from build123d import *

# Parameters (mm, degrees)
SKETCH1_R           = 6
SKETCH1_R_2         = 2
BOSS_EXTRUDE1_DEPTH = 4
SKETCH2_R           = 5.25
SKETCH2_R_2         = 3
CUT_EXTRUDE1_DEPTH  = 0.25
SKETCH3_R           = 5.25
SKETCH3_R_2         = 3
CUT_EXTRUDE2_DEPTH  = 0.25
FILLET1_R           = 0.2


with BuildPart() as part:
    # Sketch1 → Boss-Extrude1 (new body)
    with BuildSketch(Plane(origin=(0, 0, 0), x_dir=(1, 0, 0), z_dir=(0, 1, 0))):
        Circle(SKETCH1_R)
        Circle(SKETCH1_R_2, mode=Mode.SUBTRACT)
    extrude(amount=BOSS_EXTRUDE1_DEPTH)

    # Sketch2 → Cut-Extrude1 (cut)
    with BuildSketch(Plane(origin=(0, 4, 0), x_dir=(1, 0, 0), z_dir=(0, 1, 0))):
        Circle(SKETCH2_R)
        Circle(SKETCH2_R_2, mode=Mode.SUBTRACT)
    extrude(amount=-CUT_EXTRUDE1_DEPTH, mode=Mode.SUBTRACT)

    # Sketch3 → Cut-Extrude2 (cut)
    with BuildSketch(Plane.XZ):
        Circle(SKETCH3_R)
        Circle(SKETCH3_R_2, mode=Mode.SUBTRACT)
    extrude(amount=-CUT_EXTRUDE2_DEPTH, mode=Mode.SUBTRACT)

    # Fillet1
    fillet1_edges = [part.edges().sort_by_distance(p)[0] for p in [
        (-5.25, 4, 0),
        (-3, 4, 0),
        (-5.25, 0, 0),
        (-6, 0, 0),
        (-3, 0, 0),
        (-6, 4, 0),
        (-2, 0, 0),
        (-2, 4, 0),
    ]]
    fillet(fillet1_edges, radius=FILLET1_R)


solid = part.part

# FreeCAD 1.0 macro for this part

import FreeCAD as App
import Part
import Sketcher

V = App.Vector
Q = App.Units.Quantity


def edges_at(feature, points):
    """Names of the edges that pass closest to the given points."""
    edges = feature.Shape.Edges
    near = lambda p: min(range(len(edges)), key=lambda i: edges[i].distToShape(Part.Vertex(*p))[0])
    return sorted({f"Edge{near(p) + 1}" for p in points})

doc = App.newDocument("Part")
params = doc.addObject("Spreadsheet::Sheet", "Params")
for row, (alias, value) in enumerate([
    ("sketch1_diameter", "12 mm"),
    ("sketch1_diameter2", "4 mm"),
    ("pad1_length", "4 mm"),
    ("sketch2_diameter", "6 mm"),
    ("sketch2_diameter2", "10.5 mm"),
    ("pocket1_length", "0.25 mm"),
    ("sketch3_diameter", "6 mm"),
    ("sketch3_diameter2", "10.5 mm"),
    ("pocket2_length", "0.25 mm"),
    ("fillet_radius", "0.2 mm"),
], start=1):
    params.set(f"A{row}", alias)
    params.set(f"B{row}", "=" + value)
    params.setAlias(f"B{row}", alias)

body = doc.addObject("PartDesign::Body", "Body")

# Sketch on XZ plane
sketch1 = body.newObject("Sketcher::SketchObject", "Sketch")
sketch1.AttachmentSupport = (doc.getObject("XZ_Plane"), [""])
sketch1.MapMode = "FlatFace"
sketch1.addGeometry([
    Part.Circle(V(0, 0, 0), V(0, 0, 1), 6),
    Part.Circle(V(0, 0, 0), V(0, 0, 1), 2),
], False)
sketch1.addConstraint([
    Sketcher.Constraint("Coincident", 0, 3, -1, 1),
    Sketcher.Constraint("Coincident", 1, 3, -1, 1),
    Sketcher.Constraint("Diameter", 0, Q("12 mm")),
    Sketcher.Constraint("Diameter", 1, Q("4 mm")),
])
sketch1.setExpression("Constraints[2]", "Params.sketch1_diameter")
sketch1.setExpression("Constraints[3]", "Params.sketch1_diameter2")
pad1 = body.newObject("PartDesign::Pad", "Pad")
pad1.Profile = sketch1
pad1.setExpression("Length", "Params.pad1_length")
pad1.Reversed = True

# Sketch on XZ plane
sketch2 = body.newObject("Sketcher::SketchObject", "Sketch001")
sketch2.AttachmentSupport = (doc.getObject("XZ_Plane"), [""])
sketch2.MapMode = "FlatFace"
sketch2.AttachmentOffset = App.Placement(V(0, 0, -4), App.Rotation())
sketch2.addGeometry([
    Part.Circle(V(0, 0, 0), V(0, 0, 1), 5.25),
    Part.Circle(V(0, 0, 0), V(0, 0, 1), 3),
], False)
sketch2.addConstraint([
    Sketcher.Constraint("Coincident", 0, 3, -1, 1),
    Sketcher.Constraint("Coincident", 1, 3, -1, 1),
    Sketcher.Constraint("Diameter", 1, Q("6 mm")),
    Sketcher.Constraint("Diameter", 0, Q("10.5 mm")),
])
sketch2.setExpression("Constraints[2]", "Params.sketch2_diameter")
sketch2.setExpression("Constraints[3]", "Params.sketch2_diameter2")
pocket1 = body.newObject("PartDesign::Pocket", "Pocket")
pocket1.Profile = sketch2
pocket1.setExpression("Length", "Params.pocket1_length")
pocket1.Reversed = True

# Sketch on XZ plane
sketch3 = body.newObject("Sketcher::SketchObject", "Sketch002")
sketch3.AttachmentSupport = (doc.getObject("XZ_Plane"), [""])
sketch3.MapMode = "FlatFace"
sketch3.addGeometry([
    Part.Circle(V(0, 0, 0), V(0, 0, 1), 5.25),
    Part.Circle(V(0, 0, 0), V(0, 0, 1), 3),
], False)
sketch3.addConstraint([
    Sketcher.Constraint("Coincident", 0, 3, -1, 1),
    Sketcher.Constraint("Coincident", 1, 3, -1, 1),
    Sketcher.Constraint("Diameter", 1, Q("6 mm")),
    Sketcher.Constraint("Diameter", 0, Q("10.5 mm")),
])
sketch3.setExpression("Constraints[2]", "Params.sketch3_diameter")
sketch3.setExpression("Constraints[3]", "Params.sketch3_diameter2")
pocket2 = body.newObject("PartDesign::Pocket", "Pocket001")
pocket2.Profile = sketch3
pocket2.setExpression("Length", "Params.pocket2_length")
doc.recompute()

fillet = body.newObject("PartDesign::Fillet", "Fillet")
fillet.Base = (pocket2, edges_at(pocket2, [
    (-5.25, 4, 0),
    (-3, 4, 0),
    (-5.25, 0, 0),
    (-6, 0, 0),
    (-3, 0, 0),
    (-6, 4, 0),
    (-2, 0, 0),
    (-2, 4, 0),
]))
fillet.setExpression("Radius", "Params.fillet_radius")

doc.recompute()
